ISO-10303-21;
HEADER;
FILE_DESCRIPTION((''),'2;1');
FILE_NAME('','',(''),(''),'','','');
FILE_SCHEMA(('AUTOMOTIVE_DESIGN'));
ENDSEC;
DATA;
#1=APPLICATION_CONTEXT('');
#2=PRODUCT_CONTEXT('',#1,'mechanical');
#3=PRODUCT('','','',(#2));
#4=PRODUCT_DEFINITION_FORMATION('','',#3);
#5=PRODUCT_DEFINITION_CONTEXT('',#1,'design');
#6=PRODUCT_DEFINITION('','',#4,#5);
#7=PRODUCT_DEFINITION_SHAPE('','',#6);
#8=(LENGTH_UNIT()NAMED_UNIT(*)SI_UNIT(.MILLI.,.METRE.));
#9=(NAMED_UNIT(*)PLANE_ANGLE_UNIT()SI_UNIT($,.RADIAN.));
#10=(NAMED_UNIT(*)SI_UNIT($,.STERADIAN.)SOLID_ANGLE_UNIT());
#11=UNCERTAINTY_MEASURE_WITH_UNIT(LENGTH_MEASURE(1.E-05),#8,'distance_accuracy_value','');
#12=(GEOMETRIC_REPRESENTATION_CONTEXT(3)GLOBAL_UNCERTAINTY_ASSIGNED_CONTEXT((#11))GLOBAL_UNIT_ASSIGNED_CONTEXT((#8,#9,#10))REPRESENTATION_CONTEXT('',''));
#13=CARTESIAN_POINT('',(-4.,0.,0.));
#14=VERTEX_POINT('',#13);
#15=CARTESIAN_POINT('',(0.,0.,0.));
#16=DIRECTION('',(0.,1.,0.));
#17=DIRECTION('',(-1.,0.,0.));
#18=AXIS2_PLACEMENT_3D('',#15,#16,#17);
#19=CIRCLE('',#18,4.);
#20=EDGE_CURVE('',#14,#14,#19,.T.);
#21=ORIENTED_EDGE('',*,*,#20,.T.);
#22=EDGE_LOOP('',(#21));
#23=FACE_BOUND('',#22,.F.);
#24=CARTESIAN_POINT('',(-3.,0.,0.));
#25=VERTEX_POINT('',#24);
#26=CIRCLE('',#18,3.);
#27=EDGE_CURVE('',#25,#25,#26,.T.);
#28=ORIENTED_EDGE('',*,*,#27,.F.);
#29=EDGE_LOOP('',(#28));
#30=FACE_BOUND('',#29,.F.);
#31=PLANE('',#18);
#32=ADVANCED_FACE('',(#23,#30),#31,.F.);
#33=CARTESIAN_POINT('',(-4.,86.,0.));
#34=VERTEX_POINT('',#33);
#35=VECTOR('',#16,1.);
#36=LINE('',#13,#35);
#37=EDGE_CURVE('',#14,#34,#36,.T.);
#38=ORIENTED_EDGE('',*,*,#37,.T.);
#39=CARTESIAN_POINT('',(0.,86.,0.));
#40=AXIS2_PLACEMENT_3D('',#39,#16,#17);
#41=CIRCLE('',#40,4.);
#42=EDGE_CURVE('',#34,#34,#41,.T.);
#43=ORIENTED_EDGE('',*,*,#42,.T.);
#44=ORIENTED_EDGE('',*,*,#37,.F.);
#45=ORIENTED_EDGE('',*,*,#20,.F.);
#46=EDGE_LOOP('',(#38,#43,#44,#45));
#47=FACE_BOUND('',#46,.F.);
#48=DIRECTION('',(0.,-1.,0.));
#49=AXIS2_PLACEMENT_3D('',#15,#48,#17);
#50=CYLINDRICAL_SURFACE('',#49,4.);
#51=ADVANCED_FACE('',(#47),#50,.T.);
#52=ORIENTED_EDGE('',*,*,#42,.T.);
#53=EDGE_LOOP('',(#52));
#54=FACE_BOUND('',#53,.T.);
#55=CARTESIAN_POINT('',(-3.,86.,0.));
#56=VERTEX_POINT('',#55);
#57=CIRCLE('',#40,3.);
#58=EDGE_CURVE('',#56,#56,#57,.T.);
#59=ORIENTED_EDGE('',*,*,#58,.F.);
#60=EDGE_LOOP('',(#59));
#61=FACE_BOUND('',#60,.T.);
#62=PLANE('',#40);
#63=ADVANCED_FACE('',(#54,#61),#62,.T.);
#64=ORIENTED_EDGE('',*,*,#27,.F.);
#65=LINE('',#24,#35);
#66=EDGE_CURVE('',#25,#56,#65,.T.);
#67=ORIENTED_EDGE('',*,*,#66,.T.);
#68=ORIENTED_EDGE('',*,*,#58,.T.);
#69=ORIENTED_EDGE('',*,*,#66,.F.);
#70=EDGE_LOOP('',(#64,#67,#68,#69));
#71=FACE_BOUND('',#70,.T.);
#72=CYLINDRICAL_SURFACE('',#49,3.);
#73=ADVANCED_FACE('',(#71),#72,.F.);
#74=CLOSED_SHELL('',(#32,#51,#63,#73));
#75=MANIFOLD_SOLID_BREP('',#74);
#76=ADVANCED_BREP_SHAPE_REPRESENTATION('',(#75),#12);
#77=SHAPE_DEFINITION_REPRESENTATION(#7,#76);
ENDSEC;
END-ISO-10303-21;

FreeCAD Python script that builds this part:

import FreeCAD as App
import Part
import Sketcher
from FreeCAD import Vector
Q = App.Units.Quantity

doc = App.newDocument("Part")
body = doc.addObject("PartDesign::Body", "Body")

# Sketch on XZ plane
sketch1 = body.newObject("Sketcher::SketchObject", "Sketch")
sketch1.AttachmentSupport = (doc.getObject("XZ_Plane"), [""])
sketch1.MapMode = "FlatFace"
sketch1.addGeometry([
    Part.Circle(Vector(0, 0, 0), Vector(0, 0, 1), 4),
    Part.Circle(Vector(0, 0, 0), Vector(0, 0, 1), 3),
], False)
sketch1.addConstraint([
    Sketcher.Constraint("Coincident", 0, 3, -1, 1),
    Sketcher.Constraint("Coincident", 1, 3, -1, 1),
    Sketcher.Constraint("Diameter", 0, Q("8 mm")),
    Sketcher.Constraint("Diameter", 1, Q("6 mm")),
])
pad1 = body.newObject("PartDesign::Pad", "Pad")
pad1.Profile = sketch1
pad1.Length = 86
pad1.Reversed = True

doc.recompute()
